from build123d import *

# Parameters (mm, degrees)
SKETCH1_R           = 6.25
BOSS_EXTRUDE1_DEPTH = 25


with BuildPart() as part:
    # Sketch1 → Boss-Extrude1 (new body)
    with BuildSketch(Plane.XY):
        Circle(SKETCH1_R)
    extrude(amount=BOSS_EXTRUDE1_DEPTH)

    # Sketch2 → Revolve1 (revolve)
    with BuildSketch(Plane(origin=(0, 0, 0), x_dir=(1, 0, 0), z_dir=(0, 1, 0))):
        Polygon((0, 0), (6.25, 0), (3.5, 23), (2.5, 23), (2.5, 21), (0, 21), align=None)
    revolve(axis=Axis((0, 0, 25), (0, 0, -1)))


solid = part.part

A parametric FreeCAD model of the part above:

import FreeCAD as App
import Part
import Sketcher


def add_polygon(sketch, points):
    """Adds a closed chain of lines whose ends are joined by coincident constraints."""
    first, n = sketch.GeometryCount, len(points)
    for a, b in zip(points, points[1:] + points[:1]):
        sketch.addGeometry(Part.LineSegment(App.Vector(*a, 0), App.Vector(*b, 0)), False)
    for i in range(n):
        sketch.addConstraint(Sketcher.Constraint("Coincident", first + i, 2, first + (i + 1) % n, 1))

doc = App.newDocument("Part")
body = doc.addObject("PartDesign::Body", "Body")

# Sketch on XY plane
sketch1 = body.newObject("Sketcher::SketchObject", "Sketch")
sketch1.AttachmentSupport = (doc.getObject("XY_Plane"), [""])
sketch1.MapMode = "FlatFace"
sketch1.addGeometry(Part.Circle(App.Vector(0, 0, 0), App.Vector(0, 0, 1), 6), False)
sketch1.addConstraint([
    Sketcher.Constraint("Coincident", 0, 3, -1, 1),
    Sketcher.Constraint("Diameter", 0, 12.5),
])
pad1 = body.newObject("PartDesign::Pad", "Pad")
pad1.Profile = sketch1
pad1.Length = 25

# Sketch on XZ plane
sketch2 = body.newObject("Sketcher::SketchObject", "Sketch001")
sketch2.AttachmentSupport = (doc.getObject("XZ_Plane"), [""])
sketch2.MapMode = "FlatFace"
add_polygon(sketch2, [(0, 0), (6.2, 0), (3.5, -23), (2.5, -23), (2.5, -21), (0, -21)])  # lines 0-5
sketch2.addConstraint([
    Sketcher.Constraint("Horizontal", 0),
    Sketcher.Constraint("Horizontal", 2),
    Sketcher.Constraint("Vertical", 3),
    Sketcher.Constraint("Horizontal", 4),
    Sketcher.Constraint("Vertical", 5),
    Sketcher.Constraint("Coincident", 5, 2, -1, 1),
    Sketcher.Constraint("DistanceX", 2, 2, 2, 1, 1.0),
    Sketcher.Constraint("DistanceY", 3, 1, 3, 2, 2.0),
    Sketcher.Constraint("DistanceY", 5, 1, 5, 2, 21.0),
    Sketcher.Constraint("DistanceX", 4, 2, 4, 1, 2.5),
    Sketcher.Constraint("DistanceX", 0, 1, 0, 2, 6.25),
])
revolution = body.newObject("PartDesign::Revolution", "Revolution")
revolution.Profile = sketch2
revolution.ReferenceAxis = (sketch2, ["V_Axis"])
revolution.Angle = 360

doc.recompute()
